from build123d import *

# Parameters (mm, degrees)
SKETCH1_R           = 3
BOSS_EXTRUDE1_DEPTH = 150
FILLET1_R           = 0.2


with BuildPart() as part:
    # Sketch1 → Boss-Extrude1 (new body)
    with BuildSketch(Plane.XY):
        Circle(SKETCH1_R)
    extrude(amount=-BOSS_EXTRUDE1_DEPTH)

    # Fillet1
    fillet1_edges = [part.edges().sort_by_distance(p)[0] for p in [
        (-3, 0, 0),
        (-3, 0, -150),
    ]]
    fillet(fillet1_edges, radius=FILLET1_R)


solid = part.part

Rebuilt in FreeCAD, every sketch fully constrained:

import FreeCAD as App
import Part
import Sketcher
from FreeCAD import Vector
Q = App.Units.Quantity


def edges_at(feature, points):
    """Names of the edges that pass closest to the given points."""
    edges = feature.Shape.Edges
    near = lambda p: min(range(len(edges)), key=lambda i: edges[i].distToShape(Part.Vertex(*p))[0])
    return sorted({f"Edge{near(p) + 1}" for p in points})

doc = App.newDocument("Part")
body = doc.addObject("PartDesign::Body", "Body")

# Sketch on XY plane
sketch1 = doc.addObject("Sketcher::SketchObject", "Sketch")
body.addObject(sketch1)
sketch1.AttachmentSupport = (doc.XY_Plane, [""])
sketch1.MapMode = "FlatFace"
sketch1.addGeometry(Part.Circle(Vector(0, 0, 0), Vector(0, 0, 1), 3), False)
sketch1.addConstraint(Sketcher.Constraint("Coincident", 0, 3, -1, 1))
sketch1.addConstraint(Sketcher.Constraint("Diameter", 0, Q("6 mm")))
pad1 = doc.addObject("PartDesign::Pad", "Pad")
body.addObject(pad1)
pad1.Profile = sketch1
pad1.Length = 150
pad1.Reversed = True
doc.recompute()

fillet = doc.addObject("PartDesign::Fillet", "Fillet")
body.addObject(fillet)
fillet.Base = (pad1, edges_at(pad1, [(-3, 0, 0), (-3, 0, -150)]))
fillet.Radius = 0.2

doc.recompute()
